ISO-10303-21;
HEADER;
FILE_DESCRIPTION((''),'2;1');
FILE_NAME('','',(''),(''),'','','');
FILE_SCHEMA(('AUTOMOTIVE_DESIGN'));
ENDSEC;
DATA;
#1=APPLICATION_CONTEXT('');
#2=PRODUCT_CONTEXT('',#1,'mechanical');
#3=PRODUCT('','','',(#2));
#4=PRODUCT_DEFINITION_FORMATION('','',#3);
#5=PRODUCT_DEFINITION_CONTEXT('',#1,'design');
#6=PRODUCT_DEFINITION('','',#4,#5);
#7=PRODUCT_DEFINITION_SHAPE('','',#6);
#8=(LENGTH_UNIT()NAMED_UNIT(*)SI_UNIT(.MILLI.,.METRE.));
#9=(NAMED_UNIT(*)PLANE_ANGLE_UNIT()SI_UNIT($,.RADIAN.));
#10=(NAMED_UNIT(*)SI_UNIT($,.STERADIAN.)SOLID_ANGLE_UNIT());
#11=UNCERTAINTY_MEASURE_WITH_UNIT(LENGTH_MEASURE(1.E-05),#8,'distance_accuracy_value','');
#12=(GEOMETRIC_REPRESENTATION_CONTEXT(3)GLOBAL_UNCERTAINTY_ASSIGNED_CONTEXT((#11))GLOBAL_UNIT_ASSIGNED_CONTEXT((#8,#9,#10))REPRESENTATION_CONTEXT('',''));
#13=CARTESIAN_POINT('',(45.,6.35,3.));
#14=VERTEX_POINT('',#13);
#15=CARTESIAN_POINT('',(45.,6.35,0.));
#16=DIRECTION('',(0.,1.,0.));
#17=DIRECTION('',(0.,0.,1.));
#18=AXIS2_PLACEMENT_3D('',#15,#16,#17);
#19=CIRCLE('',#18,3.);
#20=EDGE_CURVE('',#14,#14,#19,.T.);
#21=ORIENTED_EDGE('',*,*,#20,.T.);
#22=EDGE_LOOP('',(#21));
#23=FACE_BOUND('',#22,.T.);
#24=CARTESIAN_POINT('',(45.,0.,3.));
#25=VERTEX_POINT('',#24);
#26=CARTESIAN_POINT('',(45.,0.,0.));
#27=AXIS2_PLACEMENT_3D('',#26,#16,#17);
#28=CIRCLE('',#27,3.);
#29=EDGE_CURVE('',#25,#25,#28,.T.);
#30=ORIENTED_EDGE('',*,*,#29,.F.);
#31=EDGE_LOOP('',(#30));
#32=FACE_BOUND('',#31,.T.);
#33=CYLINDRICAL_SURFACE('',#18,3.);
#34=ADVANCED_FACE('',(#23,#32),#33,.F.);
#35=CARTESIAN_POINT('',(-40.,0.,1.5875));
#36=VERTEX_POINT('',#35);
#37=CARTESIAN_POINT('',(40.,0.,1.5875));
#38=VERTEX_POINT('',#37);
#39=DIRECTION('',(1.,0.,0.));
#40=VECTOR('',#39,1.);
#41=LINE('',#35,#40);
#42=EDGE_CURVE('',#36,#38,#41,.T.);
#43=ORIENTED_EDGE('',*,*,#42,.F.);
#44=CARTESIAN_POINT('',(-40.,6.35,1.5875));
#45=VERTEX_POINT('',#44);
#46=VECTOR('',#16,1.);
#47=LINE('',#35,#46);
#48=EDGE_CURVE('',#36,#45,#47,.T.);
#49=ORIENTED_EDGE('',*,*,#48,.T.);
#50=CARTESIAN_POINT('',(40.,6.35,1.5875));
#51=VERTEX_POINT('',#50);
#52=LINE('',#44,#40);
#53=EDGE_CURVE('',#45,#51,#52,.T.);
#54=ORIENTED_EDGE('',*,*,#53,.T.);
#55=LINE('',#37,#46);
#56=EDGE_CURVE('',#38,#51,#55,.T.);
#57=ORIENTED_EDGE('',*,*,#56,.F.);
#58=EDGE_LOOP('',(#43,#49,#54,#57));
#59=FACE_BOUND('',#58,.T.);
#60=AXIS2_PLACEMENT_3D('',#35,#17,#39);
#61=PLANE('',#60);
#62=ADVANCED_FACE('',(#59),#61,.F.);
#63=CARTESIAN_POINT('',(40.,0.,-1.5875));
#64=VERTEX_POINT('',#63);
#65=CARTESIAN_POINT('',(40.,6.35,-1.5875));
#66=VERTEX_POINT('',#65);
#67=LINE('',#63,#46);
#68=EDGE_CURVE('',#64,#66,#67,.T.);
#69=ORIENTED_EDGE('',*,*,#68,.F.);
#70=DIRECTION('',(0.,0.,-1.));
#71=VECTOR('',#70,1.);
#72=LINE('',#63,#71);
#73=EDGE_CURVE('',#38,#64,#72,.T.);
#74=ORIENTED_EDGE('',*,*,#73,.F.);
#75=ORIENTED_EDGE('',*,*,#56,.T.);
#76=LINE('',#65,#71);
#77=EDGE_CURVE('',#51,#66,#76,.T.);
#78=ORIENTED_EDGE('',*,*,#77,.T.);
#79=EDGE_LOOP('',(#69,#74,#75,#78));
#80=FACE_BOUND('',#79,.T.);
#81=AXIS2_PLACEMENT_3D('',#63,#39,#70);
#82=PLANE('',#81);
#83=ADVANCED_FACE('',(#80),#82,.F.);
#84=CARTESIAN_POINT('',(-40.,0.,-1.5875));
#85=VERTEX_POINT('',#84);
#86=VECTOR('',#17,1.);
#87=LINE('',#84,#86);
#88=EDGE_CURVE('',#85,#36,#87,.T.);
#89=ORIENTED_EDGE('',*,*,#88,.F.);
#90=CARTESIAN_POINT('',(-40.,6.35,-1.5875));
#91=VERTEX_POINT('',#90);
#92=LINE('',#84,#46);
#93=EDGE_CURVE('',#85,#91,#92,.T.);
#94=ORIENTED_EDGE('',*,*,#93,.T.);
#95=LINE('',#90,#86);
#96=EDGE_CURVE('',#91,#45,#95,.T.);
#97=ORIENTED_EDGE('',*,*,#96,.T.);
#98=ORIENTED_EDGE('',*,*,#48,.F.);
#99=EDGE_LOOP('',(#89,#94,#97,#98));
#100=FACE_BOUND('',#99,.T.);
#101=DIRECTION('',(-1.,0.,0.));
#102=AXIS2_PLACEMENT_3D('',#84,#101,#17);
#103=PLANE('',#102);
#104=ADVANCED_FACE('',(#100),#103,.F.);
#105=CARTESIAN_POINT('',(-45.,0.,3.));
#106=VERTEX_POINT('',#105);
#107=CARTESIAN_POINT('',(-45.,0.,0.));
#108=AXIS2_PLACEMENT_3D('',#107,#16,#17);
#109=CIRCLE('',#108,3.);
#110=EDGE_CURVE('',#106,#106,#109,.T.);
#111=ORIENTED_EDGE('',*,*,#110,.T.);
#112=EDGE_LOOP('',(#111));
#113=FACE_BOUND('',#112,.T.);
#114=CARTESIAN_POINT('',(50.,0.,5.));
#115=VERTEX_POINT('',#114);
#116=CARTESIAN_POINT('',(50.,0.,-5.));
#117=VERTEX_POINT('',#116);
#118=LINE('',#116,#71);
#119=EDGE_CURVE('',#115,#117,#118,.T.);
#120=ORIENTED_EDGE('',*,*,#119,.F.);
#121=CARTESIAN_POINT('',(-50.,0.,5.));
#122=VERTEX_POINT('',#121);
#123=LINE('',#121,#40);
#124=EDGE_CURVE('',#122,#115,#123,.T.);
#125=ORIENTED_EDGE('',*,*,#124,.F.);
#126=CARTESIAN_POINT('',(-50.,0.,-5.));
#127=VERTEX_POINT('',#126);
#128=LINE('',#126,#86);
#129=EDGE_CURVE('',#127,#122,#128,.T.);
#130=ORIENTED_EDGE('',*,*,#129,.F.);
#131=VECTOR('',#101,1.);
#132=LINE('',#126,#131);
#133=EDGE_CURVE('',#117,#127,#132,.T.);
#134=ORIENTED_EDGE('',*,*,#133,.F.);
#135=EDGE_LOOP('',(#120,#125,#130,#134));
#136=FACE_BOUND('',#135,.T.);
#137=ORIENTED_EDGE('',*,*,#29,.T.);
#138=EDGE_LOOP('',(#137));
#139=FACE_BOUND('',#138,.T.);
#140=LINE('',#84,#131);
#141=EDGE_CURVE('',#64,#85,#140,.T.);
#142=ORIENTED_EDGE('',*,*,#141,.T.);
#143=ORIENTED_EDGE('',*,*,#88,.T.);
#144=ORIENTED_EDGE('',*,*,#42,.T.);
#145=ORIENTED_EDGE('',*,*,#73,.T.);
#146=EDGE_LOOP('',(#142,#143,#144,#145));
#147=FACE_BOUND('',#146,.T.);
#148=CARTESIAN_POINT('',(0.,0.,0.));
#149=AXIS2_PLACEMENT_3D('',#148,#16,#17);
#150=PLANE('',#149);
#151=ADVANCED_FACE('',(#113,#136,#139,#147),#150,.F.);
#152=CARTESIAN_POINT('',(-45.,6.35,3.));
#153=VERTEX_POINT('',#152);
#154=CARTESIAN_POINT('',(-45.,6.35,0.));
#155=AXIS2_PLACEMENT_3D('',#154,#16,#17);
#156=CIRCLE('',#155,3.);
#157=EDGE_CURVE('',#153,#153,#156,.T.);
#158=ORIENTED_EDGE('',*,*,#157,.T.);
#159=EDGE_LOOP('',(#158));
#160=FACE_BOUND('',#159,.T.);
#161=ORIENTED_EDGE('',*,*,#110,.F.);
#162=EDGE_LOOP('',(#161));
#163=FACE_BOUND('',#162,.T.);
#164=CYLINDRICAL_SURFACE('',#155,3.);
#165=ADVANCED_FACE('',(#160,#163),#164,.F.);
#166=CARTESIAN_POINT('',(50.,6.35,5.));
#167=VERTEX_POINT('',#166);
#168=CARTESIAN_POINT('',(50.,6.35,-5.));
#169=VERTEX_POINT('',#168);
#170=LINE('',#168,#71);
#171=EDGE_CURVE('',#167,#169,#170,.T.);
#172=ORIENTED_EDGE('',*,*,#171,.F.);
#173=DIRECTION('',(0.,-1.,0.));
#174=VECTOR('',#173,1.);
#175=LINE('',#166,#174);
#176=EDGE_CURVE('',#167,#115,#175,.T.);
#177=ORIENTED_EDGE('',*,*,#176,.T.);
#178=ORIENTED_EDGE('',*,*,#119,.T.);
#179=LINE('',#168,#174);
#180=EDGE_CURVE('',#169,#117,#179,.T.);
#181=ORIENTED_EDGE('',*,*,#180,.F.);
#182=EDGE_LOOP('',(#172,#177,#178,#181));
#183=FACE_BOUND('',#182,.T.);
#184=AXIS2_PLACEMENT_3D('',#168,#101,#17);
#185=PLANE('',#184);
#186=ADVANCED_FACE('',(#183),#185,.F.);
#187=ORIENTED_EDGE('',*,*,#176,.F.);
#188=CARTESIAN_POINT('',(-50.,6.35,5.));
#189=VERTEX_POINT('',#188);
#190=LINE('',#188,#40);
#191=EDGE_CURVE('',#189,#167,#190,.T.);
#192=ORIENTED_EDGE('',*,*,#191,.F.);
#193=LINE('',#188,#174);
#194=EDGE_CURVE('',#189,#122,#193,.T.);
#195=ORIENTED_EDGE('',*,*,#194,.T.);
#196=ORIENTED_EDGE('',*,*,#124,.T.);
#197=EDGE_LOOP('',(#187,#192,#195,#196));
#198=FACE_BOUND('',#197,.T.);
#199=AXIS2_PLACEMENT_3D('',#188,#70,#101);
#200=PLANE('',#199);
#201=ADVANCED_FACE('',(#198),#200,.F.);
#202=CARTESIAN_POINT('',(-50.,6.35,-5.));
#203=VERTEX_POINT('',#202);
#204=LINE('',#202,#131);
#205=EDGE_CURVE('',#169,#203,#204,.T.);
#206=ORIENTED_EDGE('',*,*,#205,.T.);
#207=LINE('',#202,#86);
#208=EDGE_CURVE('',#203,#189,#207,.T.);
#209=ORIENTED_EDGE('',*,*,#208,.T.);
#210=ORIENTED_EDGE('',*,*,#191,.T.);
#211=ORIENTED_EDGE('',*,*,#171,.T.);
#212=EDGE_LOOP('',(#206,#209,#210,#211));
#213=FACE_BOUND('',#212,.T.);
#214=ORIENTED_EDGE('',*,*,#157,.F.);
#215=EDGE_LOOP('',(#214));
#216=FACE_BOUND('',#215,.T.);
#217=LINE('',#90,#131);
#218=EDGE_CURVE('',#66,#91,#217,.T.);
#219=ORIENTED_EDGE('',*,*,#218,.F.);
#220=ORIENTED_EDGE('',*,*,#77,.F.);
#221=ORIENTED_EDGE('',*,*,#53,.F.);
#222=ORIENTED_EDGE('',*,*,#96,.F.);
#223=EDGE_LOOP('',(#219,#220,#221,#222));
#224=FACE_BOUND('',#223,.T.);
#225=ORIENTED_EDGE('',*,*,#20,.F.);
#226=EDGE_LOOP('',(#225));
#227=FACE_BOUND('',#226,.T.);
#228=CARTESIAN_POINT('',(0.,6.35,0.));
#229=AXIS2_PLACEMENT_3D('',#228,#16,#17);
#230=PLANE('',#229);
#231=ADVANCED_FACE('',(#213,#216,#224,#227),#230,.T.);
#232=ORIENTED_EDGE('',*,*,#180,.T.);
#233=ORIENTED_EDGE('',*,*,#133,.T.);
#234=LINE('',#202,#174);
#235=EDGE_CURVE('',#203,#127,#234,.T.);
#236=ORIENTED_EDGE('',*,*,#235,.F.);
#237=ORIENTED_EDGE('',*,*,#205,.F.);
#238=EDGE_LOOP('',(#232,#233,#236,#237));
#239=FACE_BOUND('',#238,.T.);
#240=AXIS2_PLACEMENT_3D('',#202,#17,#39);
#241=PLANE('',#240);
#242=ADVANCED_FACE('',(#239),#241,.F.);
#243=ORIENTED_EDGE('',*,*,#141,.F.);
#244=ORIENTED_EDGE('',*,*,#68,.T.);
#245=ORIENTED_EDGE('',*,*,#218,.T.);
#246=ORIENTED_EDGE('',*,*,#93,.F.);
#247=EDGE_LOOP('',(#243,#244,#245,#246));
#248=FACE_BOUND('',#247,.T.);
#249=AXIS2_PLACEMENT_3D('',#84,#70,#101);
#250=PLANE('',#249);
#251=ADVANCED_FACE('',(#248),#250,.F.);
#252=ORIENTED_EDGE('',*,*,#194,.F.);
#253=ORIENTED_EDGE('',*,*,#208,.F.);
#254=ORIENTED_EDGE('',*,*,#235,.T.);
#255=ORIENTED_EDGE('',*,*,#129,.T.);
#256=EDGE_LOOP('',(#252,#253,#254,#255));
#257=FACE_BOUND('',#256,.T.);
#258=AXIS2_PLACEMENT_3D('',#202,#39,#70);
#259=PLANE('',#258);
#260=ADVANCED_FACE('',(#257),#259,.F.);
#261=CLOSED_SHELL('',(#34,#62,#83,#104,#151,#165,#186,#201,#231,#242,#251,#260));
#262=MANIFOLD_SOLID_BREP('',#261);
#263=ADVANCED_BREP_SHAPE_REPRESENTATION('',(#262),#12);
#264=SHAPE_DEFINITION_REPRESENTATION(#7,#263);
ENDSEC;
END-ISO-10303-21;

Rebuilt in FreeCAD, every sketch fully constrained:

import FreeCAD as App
import Part
import Sketcher
from FreeCAD import Vector

doc = App.newDocument("Part")
body = doc.addObject("PartDesign::Body", "Body")

sketch1 = body.newObject("Sketcher::SketchObject", "Sketch")
sketch1.AttachmentSupport = (doc.getObject("XZ_Plane"), [""])
sketch1.MapMode = "FlatFace"
sketch1.addGeometry(Part.LineSegment(Vector(-50, -5, 0), Vector(-50, 5, 0)), False)
sketch1.addGeometry(Part.LineSegment(Vector(-50, 5, 0), Vector(50, 5, 0)), False)
sketch1.addGeometry(Part.LineSegment(Vector(50, 5, 0), Vector(50, -5, 0)), False)
sketch1.addGeometry(Part.LineSegment(Vector(50, -5, 0), Vector(-50, -5, 0)), False)
sketch1.addConstraint(Sketcher.Constraint("Coincident", 0, 2, 1, 1))
sketch1.addConstraint(Sketcher.Constraint("Coincident", 1, 2, 2, 1))
sketch1.addConstraint(Sketcher.Constraint("Coincident", 2, 2, 3, 1))
sketch1.addConstraint(Sketcher.Constraint("Coincident", 3, 2, 0, 1))
sketch1.addConstraint(Sketcher.Constraint("Vertical", 0))
sketch1.addConstraint(Sketcher.Constraint("Horizontal", 1))
sketch1.addConstraint(Sketcher.Constraint("Vertical", 2))
sketch1.addConstraint(Sketcher.Constraint("Horizontal", 3))
sketch1.addConstraint(Sketcher.Constraint("Symmetric", 0, 2, 2, 2, -1, 1))
sketch1.addConstraint(Sketcher.Constraint("DistanceX", 1, 1, 1, 2, 100.0))
sketch1.addConstraint(Sketcher.Constraint("DistanceY", 0, 1, 0, 2, 10.0))
pad1 = body.newObject("PartDesign::Pad", "Pad")
pad1.Profile = sketch1
pad1.Length = 6.35
pad1.Reversed = True

sketch2 = body.newObject("Sketcher::SketchObject", "Sketch001")
sketch2.AttachmentSupport = (doc.getObject("XZ_Plane"), [""])
sketch2.MapMode = "FlatFace"
sketch2.AttachmentOffset = App.Placement(Vector(0, 0, -6.35), App.Rotation())
sketch2.addGeometry(Part.LineSegment(Vector(-40, -1.5875, 0), Vector(-40, 1.5875, 0)), False)
sketch2.addGeometry(Part.LineSegment(Vector(-40, 1.5875, 0), Vector(40, 1.5875, 0)), False)
sketch2.addGeometry(Part.LineSegment(Vector(40, 1.5875, 0), Vector(40, -1.5875, 0)), False)
sketch2.addGeometry(Part.LineSegment(Vector(40, -1.5875, 0), Vector(-40, -1.5875, 0)), False)
sketch2.addConstraint(Sketcher.Constraint("Coincident", 0, 2, 1, 1))
sketch2.addConstraint(Sketcher.Constraint("Coincident", 1, 2, 2, 1))
sketch2.addConstraint(Sketcher.Constraint("Coincident", 2, 2, 3, 1))
sketch2.addConstraint(Sketcher.Constraint("Coincident", 3, 2, 0, 1))
sketch2.addConstraint(Sketcher.Constraint("Vertical", 0))
sketch2.addConstraint(Sketcher.Constraint("Horizontal", 1))
sketch2.addConstraint(Sketcher.Constraint("Vertical", 2))
sketch2.addConstraint(Sketcher.Constraint("Horizontal", 3))
sketch2.addConstraint(Sketcher.Constraint("Symmetric", 0, 2, 2, 2, -1, 1))
sketch2.addConstraint(Sketcher.Constraint("DistanceX", 1, 1, 1, 2, 80.0))
sketch2.addConstraint(Sketcher.Constraint("DistanceY", 0, 1, 0, 2, 3.175))
pocket1 = body.newObject("PartDesign::Pocket", "Pocket")
pocket1.Profile = sketch2
pocket1.Length = 6.35
pocket1.Reversed = True

sketch3 = body.newObject("Sketcher::SketchObject", "Sketch002")
sketch3.AttachmentSupport = (doc.getObject("XZ_Plane"), [""])
sketch3.MapMode = "FlatFace"
sketch3.AttachmentOffset = App.Placement(Vector(0, 0, -6.35), App.Rotation())
sketch3.addGeometry(Part.Circle(Vector(-45, 0, 0), Vector(0, 0, 1), 3), False)
sketch3.addGeometry(Part.Circle(Vector(45, 0, 0), Vector(0, 0, 1), 3), False)
sketch3.addConstraint(Sketcher.Constraint("Equal", 0, 1))
sketch3.addConstraint(Sketcher.Constraint("Symmetric", 0, 3, 1, 3, -1, 1))
sketch3.addConstraint(Sketcher.Constraint("PointOnObject", 0, 3, -1))
sketch3.addConstraint(Sketcher.Constraint("Diameter", 0, 6.0))
sketch3.addConstraint(Sketcher.Constraint("DistanceX", 0, 3, -1, 1, 45.0))
doc.recompute()
hole = body.newObject("PartDesign::Hole", "Hole")
hole.Profile = sketch3
hole.ThreadType = "None"
hole.Diameter = 6
hole.DepthType = "Dimension"
hole.Depth = 20
hole.DrillPoint = "Angled"
hole.DrillPointAngle = 118
hole.Reversed = True

doc.recompute()
